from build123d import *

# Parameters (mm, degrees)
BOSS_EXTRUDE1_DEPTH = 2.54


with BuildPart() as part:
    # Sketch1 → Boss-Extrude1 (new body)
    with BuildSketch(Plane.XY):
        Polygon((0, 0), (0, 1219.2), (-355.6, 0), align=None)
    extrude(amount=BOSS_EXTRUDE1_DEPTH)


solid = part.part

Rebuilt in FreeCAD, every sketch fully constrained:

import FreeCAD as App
import Part
import Sketcher
Q = App.Units.Quantity

doc = App.newDocument("Part")
params = doc.addObject("Spreadsheet::Sheet", "Params")
for row, (alias, value) in enumerate([
    ("sketch1_width", "14 in"),
    ("sketch1_height", "48 in"),
    ("pad1_length", "0.1 in"),
], start=1):
    params.set(f"A{row}", alias)
    params.set(f"B{row}", "=" + value)
    params.setAlias(f"B{row}", alias)

body = doc.addObject("PartDesign::Body", "Body")

sketch1 = body.newObject("Sketcher::SketchObject", "Sketch")
sketch1.AttachmentSupport = (doc.getObject("XY_Plane"), [""])
sketch1.MapMode = "FlatFace"
sketch1.addGeometry(Part.LineSegment(App.Vector(0, 0, 0), App.Vector(0, 1219, 0)), False)
sketch1.addGeometry(Part.LineSegment(App.Vector(0, 1219, 0), App.Vector(-356, 0, 0)), False)
sketch1.addGeometry(Part.LineSegment(App.Vector(-356, 0, 0), App.Vector(0, 0, 0)), False)
sketch1.addConstraint(Sketcher.Constraint("Coincident", 0, 2, 1, 1))
sketch1.addConstraint(Sketcher.Constraint("Coincident", 1, 2, 2, 1))
sketch1.addConstraint(Sketcher.Constraint("Coincident", 2, 2, 0, 1))
sketch1.addConstraint(Sketcher.Constraint("Vertical", 0))
sketch1.addConstraint(Sketcher.Constraint("Horizontal", 2))
sketch1.addConstraint(Sketcher.Constraint("Coincident", 2, 2, -1, 1))
sketch1.addConstraint(Sketcher.Constraint("DistanceX", 2, 1, 2, 2, Q("14 in")))
sketch1.addConstraint(Sketcher.Constraint("DistanceY", 0, 1, 0, 2, Q("48 in")))
sketch1.setExpression("Constraints[6]", "Params.sketch1_width")
sketch1.setExpression("Constraints[7]", "Params.sketch1_height")
pad1 = body.newObject("PartDesign::Pad", "Pad")
pad1.Profile = sketch1
pad1.setExpression("Length", "Params.pad1_length")

doc.recompute()
